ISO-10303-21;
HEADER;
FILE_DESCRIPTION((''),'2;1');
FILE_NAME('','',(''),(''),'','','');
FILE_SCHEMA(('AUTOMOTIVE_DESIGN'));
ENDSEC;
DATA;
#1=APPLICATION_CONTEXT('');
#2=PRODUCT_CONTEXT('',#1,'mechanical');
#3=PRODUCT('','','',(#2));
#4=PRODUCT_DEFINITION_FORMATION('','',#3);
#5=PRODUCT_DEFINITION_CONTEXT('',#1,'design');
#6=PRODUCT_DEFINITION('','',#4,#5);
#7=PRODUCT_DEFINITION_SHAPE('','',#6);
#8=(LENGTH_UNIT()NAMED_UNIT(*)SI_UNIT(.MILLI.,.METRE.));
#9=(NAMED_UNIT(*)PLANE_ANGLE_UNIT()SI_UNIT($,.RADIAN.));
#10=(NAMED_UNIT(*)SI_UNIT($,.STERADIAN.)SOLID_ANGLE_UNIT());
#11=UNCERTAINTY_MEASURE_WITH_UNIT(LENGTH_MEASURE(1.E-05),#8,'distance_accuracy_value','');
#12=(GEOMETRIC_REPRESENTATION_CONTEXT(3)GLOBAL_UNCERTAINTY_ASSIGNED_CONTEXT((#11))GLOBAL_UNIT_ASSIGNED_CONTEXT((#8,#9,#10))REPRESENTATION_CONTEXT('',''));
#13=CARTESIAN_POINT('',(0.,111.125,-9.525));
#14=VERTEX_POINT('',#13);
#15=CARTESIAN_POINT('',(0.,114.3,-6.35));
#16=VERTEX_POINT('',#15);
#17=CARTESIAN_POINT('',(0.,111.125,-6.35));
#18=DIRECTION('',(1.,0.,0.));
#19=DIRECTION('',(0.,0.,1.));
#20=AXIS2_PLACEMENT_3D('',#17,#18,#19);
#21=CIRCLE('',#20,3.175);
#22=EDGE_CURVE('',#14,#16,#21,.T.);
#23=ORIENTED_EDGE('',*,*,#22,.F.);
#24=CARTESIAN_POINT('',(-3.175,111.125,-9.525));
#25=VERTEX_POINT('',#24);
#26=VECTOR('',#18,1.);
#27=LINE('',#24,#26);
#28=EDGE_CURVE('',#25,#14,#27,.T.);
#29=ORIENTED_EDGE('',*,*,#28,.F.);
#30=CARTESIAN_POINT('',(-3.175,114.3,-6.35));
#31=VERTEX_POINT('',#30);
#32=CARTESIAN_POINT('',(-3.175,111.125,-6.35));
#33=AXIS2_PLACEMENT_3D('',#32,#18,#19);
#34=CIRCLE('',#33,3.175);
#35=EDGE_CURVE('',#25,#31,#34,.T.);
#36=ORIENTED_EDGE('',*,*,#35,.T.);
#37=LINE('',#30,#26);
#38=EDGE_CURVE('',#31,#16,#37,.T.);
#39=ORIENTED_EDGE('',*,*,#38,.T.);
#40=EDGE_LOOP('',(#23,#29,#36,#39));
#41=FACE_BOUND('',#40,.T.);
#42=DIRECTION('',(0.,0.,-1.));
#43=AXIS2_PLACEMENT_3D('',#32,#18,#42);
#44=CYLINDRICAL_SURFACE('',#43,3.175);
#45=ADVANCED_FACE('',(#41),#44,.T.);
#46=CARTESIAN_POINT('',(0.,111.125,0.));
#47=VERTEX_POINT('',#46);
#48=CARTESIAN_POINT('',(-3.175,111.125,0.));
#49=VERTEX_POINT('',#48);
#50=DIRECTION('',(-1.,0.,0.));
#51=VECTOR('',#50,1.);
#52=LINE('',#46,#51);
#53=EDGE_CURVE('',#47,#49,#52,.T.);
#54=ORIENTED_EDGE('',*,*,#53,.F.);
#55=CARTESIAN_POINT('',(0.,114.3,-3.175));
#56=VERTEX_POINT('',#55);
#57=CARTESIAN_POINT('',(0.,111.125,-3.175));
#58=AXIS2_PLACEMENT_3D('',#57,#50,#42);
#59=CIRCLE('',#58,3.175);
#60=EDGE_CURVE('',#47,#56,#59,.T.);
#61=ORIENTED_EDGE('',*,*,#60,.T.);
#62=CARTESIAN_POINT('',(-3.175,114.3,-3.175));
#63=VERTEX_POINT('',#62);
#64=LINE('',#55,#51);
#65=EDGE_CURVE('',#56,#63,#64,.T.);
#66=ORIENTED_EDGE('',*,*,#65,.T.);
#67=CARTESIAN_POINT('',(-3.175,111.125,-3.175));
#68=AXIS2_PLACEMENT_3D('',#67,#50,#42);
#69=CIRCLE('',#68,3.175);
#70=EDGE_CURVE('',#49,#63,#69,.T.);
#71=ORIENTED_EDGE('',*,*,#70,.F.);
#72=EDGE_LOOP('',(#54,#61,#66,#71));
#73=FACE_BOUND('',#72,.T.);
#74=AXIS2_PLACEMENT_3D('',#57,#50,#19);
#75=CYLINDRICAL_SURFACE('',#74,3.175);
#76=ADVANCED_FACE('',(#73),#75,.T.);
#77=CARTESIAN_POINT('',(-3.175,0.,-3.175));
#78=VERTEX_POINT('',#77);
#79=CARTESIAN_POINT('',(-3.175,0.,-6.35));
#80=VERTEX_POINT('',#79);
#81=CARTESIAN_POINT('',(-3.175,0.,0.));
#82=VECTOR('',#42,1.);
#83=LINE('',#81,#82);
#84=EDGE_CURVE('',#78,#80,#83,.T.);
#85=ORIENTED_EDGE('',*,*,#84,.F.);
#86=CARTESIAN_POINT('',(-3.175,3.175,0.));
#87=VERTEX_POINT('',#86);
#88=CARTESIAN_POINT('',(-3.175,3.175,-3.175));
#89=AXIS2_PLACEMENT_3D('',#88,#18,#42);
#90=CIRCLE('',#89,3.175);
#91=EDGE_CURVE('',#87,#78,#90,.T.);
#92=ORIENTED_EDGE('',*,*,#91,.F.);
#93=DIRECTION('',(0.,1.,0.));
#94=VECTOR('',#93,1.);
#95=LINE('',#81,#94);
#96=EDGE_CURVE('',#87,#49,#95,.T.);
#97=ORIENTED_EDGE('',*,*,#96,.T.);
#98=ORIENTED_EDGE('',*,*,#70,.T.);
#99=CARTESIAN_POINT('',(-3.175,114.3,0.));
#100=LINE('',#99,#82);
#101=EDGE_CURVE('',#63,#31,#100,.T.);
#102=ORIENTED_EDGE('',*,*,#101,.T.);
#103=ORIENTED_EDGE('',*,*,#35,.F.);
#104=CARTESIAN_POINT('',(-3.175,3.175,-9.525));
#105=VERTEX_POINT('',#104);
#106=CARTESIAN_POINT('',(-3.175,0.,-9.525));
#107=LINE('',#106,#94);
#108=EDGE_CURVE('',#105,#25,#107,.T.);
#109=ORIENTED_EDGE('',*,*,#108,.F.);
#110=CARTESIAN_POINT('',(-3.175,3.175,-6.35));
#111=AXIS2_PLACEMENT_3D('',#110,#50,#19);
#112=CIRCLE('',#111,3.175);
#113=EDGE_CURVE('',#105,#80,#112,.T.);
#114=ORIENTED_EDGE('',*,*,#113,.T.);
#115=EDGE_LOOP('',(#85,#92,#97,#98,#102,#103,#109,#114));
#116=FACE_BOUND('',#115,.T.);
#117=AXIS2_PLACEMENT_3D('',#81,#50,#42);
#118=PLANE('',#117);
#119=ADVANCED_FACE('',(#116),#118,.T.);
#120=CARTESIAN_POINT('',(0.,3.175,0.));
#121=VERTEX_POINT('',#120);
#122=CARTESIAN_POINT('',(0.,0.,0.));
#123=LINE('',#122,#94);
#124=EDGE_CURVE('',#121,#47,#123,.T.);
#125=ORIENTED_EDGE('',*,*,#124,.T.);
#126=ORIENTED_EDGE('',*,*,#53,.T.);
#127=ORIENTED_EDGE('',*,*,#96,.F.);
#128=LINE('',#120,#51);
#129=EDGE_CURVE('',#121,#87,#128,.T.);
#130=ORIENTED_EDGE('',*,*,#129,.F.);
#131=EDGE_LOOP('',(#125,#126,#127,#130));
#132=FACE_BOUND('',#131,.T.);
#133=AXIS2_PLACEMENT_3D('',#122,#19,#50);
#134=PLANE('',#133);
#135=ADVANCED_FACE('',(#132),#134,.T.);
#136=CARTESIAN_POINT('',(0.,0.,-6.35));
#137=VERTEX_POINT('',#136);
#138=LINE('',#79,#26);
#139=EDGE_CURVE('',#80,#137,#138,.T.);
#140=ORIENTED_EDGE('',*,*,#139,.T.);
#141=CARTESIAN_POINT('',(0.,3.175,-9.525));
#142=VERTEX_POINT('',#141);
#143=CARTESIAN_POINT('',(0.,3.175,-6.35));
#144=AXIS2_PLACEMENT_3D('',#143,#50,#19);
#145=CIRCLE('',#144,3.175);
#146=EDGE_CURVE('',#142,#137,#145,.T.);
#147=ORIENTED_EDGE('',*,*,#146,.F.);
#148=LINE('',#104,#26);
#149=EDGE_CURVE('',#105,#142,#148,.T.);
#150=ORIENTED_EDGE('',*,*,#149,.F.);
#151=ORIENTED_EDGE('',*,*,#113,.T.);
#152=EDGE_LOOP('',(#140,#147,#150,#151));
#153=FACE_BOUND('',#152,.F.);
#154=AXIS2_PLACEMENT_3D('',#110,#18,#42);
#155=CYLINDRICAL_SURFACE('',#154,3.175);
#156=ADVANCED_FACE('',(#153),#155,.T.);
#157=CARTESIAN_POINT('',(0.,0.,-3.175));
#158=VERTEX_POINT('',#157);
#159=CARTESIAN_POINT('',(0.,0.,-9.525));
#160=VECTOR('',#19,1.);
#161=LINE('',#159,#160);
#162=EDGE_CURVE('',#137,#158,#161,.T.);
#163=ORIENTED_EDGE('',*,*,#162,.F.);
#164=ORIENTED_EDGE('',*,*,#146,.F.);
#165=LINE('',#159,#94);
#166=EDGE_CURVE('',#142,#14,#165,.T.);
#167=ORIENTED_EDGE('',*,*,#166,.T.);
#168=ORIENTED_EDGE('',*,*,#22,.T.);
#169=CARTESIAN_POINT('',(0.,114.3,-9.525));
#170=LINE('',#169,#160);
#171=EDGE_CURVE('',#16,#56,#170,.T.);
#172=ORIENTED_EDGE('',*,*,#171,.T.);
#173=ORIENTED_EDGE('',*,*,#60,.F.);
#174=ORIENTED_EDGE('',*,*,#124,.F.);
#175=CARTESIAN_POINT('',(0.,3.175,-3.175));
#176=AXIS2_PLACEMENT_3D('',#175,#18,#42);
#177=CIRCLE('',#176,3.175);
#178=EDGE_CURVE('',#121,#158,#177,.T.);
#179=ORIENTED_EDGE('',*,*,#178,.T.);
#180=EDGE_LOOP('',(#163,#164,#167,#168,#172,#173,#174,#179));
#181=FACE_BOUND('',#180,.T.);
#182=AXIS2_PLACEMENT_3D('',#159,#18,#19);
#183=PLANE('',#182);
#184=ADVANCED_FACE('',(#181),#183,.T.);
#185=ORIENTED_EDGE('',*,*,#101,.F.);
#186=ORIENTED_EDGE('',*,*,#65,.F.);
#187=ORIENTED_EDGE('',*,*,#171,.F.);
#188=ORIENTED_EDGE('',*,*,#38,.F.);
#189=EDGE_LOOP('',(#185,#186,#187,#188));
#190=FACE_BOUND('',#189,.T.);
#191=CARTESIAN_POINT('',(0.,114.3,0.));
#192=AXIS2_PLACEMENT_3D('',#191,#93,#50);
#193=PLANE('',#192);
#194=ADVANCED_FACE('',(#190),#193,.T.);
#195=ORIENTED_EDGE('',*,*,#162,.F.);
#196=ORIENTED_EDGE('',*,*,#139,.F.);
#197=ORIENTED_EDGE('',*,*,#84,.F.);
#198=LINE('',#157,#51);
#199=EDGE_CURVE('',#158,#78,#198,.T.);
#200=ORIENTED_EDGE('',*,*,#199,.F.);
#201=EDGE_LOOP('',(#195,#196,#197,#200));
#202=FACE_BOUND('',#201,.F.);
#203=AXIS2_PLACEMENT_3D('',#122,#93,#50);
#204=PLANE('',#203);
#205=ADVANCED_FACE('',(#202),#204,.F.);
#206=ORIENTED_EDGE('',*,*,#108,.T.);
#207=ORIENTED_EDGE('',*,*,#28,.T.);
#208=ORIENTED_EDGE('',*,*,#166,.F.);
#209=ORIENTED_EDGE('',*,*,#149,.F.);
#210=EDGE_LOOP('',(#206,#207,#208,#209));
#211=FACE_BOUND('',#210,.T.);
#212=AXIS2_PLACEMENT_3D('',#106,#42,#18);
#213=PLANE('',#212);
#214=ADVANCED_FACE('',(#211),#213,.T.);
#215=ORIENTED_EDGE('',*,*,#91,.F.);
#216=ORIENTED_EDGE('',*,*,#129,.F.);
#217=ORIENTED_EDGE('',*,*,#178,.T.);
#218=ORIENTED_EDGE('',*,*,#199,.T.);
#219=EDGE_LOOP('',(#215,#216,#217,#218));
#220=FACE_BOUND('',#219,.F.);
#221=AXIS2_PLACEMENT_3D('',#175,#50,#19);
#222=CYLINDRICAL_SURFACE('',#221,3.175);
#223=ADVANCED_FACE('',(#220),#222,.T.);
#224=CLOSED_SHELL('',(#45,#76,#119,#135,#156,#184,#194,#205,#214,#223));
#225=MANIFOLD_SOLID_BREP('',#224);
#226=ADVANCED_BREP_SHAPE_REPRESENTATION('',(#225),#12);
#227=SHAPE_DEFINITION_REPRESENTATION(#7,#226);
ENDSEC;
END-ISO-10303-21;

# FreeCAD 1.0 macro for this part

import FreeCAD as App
import Part
import Sketcher

V = App.Vector
Q = App.Units.Quantity


def edges_at(feature, points):
    """Names of the edges that pass closest to the given points."""
    edges = feature.Shape.Edges
    near = lambda p: min(range(len(edges)), key=lambda i: edges[i].distToShape(Part.Vertex(*p))[0])
    return sorted({f"Edge{near(p) + 1}" for p in points})


def add_polygon(sketch, points):
    """Adds a closed chain of lines whose ends are joined by coincident constraints."""
    first, n = sketch.GeometryCount, len(points)
    for a, b in zip(points, points[1:] + points[:1]):
        sketch.addGeometry(Part.LineSegment(App.Vector(*a, 0), App.Vector(*b, 0)), False)
    for i in range(n):
        sketch.addConstraint(Sketcher.Constraint("Coincident", first + i, 2, first + (i + 1) % n, 1))

doc = App.newDocument("Part")
body = doc.addObject("PartDesign::Body", "Body")

# Sketch on XZ plane
sketch1 = body.newObject("Sketcher::SketchObject", "Sketch")
sketch1.AttachmentSupport = (doc.getObject("XZ_Plane"), [""])
sketch1.MapMode = "FlatFace"
add_polygon(sketch1, [(-3.2, 0), (0, 0), (0, -9.5), (-3.2, -9.5)])  # lines 0-3
sketch1.addConstraint([
    Sketcher.Constraint("Horizontal", 0),
    Sketcher.Constraint("Vertical", 1),
    Sketcher.Constraint("Horizontal", 2),
    Sketcher.Constraint("Vertical", 3),
    Sketcher.Constraint("Coincident", 0, 2, -1, 1),
    Sketcher.Constraint("DistanceX", 0, 1, 0, 2, Q("0.125 in")),
    Sketcher.Constraint("DistanceY", 1, 2, 1, 1, Q("0.375 in")),
])
pad1 = body.newObject("PartDesign::Pad", "Pad")
pad1.Profile = sketch1
pad1.Length = Q("4.5 in")
pad1.Reversed = True
doc.recompute()

fillet = body.newObject("PartDesign::Fillet", "Fillet")
fillet.Base = (pad1, edges_at(pad1, [
    (-1.587, 0, 0),
    (-1.587, 0, -9.525),
    (-1.587, 114.3, 0),
    (-1.587, 114.3, -9.525),
]))
fillet.Radius = Q("0.125 in")

doc.recompute()
